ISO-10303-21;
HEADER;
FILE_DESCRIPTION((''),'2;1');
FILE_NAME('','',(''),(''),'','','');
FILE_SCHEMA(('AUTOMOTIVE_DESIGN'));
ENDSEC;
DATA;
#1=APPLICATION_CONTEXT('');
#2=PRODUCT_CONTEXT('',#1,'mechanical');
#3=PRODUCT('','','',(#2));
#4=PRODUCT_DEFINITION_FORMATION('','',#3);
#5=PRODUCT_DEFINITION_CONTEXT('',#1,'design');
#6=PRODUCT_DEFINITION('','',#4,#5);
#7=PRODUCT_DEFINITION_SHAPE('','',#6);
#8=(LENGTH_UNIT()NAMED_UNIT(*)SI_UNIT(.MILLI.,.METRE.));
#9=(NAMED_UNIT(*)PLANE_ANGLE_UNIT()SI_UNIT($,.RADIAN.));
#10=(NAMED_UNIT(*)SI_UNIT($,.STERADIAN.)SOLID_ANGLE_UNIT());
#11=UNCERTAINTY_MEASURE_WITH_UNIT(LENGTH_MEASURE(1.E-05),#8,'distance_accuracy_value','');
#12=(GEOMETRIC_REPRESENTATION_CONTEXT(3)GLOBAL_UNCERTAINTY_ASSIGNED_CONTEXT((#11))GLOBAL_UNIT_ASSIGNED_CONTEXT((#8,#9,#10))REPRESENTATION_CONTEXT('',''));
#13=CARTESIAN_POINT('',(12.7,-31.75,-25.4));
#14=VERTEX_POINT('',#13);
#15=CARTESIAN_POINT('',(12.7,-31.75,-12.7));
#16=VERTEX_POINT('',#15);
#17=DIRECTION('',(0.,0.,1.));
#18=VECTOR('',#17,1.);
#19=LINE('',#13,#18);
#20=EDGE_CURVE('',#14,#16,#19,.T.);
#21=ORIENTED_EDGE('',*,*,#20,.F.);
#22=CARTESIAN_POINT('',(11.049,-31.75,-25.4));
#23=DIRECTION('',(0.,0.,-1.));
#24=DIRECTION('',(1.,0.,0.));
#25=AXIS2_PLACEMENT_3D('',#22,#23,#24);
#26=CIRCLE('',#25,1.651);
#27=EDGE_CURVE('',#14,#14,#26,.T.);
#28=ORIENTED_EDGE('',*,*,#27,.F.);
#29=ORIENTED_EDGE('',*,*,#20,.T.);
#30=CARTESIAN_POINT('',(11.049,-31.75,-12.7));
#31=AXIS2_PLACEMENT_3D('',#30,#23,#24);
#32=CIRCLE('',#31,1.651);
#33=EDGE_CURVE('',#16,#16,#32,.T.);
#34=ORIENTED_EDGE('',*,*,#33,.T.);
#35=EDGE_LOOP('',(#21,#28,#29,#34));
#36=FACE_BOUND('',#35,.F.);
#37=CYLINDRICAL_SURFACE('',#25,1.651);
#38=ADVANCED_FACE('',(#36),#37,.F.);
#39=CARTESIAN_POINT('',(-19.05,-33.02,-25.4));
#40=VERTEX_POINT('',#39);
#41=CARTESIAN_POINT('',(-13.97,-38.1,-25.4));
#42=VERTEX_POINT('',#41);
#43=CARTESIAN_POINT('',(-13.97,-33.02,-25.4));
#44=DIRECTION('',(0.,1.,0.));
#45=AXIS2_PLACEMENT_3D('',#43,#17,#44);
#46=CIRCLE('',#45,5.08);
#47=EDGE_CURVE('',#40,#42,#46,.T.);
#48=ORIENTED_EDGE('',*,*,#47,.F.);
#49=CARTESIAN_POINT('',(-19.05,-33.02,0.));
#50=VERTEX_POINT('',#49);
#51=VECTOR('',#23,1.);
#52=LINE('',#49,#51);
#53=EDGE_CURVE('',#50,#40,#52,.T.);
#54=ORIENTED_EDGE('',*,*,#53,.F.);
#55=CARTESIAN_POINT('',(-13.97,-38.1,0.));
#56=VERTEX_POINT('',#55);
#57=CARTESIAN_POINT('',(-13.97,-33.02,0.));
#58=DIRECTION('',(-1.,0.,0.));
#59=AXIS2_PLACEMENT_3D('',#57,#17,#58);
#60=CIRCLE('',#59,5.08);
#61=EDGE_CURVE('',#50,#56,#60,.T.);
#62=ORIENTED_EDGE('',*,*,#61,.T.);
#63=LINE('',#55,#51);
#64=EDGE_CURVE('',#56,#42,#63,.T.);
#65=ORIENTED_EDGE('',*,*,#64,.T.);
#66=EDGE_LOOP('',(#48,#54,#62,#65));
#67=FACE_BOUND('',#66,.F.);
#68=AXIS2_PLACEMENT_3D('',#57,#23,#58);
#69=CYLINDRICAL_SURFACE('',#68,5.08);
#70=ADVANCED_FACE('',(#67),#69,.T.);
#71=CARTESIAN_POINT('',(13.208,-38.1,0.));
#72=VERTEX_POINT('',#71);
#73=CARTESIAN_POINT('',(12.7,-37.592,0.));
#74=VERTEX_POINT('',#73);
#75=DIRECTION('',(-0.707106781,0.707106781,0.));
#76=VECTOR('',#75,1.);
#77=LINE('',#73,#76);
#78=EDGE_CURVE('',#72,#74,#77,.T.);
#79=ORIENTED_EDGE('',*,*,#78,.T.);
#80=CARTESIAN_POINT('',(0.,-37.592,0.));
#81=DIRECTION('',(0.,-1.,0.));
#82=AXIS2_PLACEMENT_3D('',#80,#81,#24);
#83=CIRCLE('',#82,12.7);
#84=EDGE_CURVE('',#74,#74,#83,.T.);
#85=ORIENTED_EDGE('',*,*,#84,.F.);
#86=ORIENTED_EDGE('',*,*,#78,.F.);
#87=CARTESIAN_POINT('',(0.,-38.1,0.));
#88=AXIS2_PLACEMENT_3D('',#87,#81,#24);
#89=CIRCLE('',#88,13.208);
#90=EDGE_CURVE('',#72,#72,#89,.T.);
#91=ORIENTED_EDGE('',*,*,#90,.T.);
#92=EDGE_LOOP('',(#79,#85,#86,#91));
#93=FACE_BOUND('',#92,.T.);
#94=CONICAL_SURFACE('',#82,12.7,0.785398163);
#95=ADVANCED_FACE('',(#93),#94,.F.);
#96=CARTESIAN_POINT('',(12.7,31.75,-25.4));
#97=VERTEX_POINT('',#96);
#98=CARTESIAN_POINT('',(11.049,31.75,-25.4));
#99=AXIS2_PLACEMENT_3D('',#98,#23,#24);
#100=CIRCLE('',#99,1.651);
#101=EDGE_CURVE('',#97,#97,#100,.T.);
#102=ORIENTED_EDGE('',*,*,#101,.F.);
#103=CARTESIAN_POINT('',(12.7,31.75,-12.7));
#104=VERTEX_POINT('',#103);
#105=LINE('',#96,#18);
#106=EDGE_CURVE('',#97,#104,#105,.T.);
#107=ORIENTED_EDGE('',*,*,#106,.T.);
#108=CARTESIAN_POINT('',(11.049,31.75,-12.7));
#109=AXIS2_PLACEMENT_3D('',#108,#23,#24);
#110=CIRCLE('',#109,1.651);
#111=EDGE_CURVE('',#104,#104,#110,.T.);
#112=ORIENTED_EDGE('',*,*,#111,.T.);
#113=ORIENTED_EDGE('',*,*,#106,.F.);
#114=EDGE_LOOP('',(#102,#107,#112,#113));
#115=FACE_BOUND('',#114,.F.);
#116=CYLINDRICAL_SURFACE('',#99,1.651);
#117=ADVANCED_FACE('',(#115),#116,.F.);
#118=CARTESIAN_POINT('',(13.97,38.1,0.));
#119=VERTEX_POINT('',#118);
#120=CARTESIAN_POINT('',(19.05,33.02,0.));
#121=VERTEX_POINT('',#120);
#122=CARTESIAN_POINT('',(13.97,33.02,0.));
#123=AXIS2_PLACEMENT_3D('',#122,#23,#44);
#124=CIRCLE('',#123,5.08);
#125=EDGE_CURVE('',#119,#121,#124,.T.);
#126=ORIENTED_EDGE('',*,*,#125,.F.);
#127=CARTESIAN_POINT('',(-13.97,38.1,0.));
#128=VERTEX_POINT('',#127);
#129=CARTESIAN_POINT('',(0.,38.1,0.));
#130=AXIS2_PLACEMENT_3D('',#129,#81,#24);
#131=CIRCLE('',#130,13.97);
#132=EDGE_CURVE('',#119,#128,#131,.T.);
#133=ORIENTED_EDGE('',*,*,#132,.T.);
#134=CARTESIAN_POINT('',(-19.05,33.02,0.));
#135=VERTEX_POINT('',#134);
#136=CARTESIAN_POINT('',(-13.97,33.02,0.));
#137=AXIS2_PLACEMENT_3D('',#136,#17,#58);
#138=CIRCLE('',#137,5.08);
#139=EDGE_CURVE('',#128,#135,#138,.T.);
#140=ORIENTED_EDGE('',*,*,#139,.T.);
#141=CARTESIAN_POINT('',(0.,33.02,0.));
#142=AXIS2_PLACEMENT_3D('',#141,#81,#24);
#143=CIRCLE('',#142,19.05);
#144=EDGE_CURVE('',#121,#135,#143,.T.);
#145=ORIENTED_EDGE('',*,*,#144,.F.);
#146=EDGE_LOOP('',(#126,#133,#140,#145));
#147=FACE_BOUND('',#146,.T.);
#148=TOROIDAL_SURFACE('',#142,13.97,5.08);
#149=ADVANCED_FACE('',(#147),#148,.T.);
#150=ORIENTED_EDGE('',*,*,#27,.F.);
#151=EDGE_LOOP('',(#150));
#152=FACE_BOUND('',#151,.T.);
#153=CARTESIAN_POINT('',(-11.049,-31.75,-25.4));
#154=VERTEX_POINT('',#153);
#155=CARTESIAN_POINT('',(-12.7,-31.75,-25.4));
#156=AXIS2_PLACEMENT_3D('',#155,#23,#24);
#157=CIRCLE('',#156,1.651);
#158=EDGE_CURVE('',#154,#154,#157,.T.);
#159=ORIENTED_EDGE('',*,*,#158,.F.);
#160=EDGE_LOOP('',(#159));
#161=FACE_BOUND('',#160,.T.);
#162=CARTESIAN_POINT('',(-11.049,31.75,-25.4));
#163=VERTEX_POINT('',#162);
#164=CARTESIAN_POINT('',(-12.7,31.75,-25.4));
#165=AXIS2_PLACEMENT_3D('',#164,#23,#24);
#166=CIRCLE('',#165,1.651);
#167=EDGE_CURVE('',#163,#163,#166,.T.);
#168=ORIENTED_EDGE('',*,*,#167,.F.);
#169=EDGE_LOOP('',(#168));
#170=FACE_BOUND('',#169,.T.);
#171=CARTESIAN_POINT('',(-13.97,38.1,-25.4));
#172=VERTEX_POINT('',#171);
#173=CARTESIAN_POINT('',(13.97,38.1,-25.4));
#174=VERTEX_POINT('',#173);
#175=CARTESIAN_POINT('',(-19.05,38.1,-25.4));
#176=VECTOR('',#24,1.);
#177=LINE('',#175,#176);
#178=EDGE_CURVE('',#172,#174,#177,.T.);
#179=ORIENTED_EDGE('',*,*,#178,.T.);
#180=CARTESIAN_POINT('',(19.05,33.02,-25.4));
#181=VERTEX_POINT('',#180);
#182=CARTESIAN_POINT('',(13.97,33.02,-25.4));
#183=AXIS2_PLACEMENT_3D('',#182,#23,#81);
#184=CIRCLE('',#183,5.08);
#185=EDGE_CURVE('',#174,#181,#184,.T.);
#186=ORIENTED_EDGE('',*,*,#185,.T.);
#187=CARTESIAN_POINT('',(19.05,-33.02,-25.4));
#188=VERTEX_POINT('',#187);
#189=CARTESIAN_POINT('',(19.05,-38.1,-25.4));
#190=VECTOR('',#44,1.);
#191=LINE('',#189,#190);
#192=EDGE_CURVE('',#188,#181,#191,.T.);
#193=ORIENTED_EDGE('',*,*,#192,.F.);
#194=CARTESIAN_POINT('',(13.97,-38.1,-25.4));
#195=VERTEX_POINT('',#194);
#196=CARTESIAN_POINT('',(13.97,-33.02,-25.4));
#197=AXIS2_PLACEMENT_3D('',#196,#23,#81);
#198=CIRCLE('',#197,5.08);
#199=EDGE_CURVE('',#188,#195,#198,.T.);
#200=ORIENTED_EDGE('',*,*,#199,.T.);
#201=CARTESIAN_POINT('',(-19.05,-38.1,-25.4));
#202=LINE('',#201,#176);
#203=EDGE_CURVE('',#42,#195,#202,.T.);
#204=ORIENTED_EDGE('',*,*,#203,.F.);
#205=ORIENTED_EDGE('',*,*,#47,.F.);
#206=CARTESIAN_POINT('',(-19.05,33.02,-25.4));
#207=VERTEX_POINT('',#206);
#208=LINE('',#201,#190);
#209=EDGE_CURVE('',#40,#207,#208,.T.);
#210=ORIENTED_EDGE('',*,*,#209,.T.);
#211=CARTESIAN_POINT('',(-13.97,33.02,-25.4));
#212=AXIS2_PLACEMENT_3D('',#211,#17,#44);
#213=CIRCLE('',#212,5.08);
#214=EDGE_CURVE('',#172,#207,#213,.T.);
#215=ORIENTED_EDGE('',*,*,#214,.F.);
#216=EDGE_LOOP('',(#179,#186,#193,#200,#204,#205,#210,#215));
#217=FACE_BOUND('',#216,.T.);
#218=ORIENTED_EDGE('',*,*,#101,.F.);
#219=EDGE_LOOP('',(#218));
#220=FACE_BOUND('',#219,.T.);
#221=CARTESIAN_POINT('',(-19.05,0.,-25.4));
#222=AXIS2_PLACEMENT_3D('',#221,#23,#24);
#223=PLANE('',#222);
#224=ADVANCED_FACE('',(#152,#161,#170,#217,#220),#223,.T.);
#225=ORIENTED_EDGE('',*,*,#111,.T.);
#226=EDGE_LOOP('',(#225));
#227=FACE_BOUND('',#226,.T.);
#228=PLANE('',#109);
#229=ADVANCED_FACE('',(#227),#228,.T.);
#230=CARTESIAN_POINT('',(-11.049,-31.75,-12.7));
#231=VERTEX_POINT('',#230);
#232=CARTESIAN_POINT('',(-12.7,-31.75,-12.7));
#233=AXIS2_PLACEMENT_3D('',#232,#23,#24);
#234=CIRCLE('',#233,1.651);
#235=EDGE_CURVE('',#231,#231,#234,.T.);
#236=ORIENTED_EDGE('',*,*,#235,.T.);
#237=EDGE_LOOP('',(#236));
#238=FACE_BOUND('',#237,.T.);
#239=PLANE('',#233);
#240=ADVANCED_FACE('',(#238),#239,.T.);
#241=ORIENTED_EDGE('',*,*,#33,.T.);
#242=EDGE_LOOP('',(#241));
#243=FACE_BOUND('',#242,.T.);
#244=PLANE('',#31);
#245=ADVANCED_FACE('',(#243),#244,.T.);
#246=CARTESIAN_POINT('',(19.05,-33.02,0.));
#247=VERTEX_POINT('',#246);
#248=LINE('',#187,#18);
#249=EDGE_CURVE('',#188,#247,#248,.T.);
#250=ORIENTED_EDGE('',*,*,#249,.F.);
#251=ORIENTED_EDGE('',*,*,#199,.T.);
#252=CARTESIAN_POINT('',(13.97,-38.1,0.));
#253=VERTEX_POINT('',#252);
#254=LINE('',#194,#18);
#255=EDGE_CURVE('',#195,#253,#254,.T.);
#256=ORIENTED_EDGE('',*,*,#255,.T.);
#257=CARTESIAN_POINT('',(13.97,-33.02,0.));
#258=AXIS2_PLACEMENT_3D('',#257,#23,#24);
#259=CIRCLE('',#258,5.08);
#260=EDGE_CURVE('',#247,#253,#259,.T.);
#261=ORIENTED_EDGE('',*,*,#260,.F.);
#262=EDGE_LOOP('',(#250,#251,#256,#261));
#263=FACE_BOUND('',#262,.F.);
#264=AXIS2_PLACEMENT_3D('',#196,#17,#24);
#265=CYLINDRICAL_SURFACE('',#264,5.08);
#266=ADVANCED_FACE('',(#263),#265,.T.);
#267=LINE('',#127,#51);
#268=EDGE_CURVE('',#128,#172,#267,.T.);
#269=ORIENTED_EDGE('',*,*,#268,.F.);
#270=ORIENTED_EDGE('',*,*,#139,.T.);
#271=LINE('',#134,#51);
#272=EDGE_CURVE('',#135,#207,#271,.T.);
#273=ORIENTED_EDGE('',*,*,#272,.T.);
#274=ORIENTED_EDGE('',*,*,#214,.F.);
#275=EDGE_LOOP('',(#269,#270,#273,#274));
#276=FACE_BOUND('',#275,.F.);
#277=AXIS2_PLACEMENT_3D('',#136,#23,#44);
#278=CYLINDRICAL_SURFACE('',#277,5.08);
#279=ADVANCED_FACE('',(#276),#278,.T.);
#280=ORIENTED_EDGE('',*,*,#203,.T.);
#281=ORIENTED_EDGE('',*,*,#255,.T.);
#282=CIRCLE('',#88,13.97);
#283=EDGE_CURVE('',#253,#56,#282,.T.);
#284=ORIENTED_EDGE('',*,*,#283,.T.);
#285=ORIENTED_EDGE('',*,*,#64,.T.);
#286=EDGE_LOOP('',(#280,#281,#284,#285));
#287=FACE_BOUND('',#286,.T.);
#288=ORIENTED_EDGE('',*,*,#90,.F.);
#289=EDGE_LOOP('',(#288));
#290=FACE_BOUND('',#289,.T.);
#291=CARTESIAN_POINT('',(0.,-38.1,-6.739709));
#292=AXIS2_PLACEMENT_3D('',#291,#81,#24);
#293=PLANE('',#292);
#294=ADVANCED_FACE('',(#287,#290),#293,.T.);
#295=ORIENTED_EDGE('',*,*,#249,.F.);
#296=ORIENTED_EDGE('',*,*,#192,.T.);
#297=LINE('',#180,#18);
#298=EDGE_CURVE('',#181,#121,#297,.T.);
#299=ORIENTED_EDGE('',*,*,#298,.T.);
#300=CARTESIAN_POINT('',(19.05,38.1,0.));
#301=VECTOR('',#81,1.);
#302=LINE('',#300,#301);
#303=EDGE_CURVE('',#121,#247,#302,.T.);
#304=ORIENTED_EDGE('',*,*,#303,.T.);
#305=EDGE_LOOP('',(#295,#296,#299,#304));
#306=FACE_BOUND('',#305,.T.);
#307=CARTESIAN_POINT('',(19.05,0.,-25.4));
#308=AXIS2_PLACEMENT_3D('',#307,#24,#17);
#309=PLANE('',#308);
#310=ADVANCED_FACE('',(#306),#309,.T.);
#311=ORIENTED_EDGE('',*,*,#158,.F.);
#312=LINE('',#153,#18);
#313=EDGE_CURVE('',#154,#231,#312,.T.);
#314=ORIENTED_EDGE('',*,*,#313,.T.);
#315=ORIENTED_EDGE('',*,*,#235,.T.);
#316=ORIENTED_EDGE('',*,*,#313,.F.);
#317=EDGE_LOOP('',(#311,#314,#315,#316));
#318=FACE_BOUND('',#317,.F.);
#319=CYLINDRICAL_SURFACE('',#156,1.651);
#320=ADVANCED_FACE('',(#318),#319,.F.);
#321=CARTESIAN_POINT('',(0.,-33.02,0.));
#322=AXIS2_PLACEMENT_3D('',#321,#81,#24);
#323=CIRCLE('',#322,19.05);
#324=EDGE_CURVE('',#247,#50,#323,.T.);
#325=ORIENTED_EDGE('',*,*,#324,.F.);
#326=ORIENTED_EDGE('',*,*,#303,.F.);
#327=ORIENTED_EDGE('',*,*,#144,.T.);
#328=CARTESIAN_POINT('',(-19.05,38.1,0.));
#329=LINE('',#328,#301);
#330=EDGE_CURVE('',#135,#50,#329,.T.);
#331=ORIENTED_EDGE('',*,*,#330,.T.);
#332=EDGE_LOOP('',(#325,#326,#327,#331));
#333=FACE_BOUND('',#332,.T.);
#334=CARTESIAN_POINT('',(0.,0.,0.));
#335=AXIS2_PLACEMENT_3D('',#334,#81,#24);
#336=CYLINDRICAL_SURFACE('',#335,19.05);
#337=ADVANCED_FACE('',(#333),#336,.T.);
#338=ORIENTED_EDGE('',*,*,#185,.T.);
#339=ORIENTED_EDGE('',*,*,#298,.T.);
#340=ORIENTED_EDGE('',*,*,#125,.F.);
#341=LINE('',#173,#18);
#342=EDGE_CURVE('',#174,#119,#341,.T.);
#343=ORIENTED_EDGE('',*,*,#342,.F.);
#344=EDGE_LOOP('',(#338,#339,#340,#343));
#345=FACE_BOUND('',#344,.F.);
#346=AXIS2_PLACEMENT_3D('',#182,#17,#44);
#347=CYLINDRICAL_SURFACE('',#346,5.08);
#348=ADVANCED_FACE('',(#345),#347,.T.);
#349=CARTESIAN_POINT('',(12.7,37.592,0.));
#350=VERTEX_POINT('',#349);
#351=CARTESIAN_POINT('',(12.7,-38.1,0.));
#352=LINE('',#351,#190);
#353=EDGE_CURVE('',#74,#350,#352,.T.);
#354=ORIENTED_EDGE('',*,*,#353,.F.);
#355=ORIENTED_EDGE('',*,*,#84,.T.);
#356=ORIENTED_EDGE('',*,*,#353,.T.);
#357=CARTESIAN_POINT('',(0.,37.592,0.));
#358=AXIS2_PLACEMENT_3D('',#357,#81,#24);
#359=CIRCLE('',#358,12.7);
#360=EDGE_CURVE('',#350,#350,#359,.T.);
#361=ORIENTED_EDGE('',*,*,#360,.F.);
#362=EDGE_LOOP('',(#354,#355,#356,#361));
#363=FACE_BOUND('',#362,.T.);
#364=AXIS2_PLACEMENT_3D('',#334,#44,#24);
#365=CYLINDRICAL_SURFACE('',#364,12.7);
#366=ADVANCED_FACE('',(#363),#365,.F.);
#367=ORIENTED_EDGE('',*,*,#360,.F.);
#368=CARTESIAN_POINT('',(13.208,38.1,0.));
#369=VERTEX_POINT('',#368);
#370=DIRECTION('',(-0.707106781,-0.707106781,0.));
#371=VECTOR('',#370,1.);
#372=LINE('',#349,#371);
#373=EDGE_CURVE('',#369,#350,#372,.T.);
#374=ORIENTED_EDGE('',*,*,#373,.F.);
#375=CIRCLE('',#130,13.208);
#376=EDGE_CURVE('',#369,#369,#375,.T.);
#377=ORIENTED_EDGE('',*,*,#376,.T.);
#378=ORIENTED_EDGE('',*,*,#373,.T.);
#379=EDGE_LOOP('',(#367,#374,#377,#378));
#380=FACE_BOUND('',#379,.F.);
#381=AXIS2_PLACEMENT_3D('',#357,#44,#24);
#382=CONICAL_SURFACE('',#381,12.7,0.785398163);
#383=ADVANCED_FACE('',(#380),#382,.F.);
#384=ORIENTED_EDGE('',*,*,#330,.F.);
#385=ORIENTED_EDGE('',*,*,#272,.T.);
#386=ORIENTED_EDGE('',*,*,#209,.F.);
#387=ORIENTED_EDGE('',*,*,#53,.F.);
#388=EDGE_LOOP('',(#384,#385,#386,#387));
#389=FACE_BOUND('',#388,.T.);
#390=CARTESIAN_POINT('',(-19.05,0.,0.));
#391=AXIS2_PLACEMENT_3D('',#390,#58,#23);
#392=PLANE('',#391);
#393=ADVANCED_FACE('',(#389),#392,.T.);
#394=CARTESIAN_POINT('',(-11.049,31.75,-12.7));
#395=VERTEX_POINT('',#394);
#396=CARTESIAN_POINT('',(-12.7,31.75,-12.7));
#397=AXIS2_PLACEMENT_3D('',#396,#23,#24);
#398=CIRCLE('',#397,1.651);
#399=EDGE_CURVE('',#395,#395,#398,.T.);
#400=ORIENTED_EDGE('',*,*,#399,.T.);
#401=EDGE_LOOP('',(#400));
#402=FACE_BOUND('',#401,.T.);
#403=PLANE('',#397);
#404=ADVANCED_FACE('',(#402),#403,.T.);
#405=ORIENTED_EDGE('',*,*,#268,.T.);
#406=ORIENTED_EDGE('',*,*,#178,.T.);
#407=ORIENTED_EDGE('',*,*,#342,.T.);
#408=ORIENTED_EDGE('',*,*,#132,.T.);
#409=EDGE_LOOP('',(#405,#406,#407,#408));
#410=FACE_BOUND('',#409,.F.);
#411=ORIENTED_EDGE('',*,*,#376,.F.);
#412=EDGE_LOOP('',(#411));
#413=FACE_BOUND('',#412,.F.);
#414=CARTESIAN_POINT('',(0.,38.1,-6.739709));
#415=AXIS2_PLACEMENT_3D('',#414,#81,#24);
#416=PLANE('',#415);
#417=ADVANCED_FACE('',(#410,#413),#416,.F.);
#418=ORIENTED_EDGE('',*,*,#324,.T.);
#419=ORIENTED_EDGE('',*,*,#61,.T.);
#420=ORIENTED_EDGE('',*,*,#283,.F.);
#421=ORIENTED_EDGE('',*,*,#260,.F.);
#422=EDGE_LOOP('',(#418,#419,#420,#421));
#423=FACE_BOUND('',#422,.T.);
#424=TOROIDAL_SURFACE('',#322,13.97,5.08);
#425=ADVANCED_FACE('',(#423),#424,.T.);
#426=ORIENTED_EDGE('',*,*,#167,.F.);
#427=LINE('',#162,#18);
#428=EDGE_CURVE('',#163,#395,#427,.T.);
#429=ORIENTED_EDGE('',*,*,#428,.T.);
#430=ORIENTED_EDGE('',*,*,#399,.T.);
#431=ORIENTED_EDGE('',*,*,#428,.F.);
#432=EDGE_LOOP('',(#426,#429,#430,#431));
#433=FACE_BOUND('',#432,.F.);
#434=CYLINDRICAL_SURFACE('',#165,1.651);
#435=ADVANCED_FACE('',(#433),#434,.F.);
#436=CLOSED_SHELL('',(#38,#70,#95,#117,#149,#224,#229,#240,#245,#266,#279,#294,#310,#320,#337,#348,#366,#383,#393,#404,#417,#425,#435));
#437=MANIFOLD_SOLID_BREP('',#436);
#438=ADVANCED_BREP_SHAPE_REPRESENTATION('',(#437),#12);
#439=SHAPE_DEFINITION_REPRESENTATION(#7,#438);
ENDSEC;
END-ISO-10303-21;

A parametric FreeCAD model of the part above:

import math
import FreeCAD as App
import Part
import Sketcher
from FreeCAD import Vector
Q = App.Units.Quantity


def edges_at(feature, points):
    """Names of the edges that pass closest to the given points."""
    edges = feature.Shape.Edges
    near = lambda p: min(range(len(edges)), key=lambda i: edges[i].distToShape(Part.Vertex(*p))[0])
    return sorted({f"Edge{near(p) + 1}" for p in points})

doc = App.newDocument("Part")
body = doc.addObject("PartDesign::Body", "Body")

# Sketch on XZ plane
sketch1 = body.newObject("Sketcher::SketchObject", "Sketch")
sketch1.AttachmentSupport = (doc.getObject("XZ_Plane"), [""])
sketch1.MapMode = "FlatFace"
sketch1.addGeometry([
    Part.LineSegment(Vector(19, -25, 0), Vector(19, 0, 0)),  # 0
    Part.ArcOfCircle(Part.Circle(Vector(0, 0, 0), Vector(0, 0, 1), 19), math.radians(0), math.radians(180)),  # 1
    Part.LineSegment(Vector(-19, 0, 0), Vector(-19, -25, 0)),  # 2
    Part.LineSegment(Vector(-19, -25, 0), Vector(19, -25, 0)),  # 3
    Part.Circle(Vector(0, 0, 0), Vector(0, 0, 1), 13),  # 4
], False)
sketch1.addConstraint([
    Sketcher.Constraint("Tangent", 0, 2, 1, 1),
    Sketcher.Constraint("Tangent", 1, 2, 2, 1),
    Sketcher.Constraint("Coincident", 2, 2, 3, 1),
    Sketcher.Constraint("Coincident", 3, 2, 0, 1),
    Sketcher.Constraint("Vertical", 0),
    Sketcher.Constraint("Vertical", 2),
    Sketcher.Constraint("Horizontal", 3),
    Sketcher.Constraint("Coincident", 1, 3, -1, 1),
    Sketcher.Constraint("Coincident", 4, 3, -1, 1),
    Sketcher.Constraint("Diameter", 4, Q("1 in")),
    Sketcher.Constraint("DistanceY", 0, 1, 0, 2, Q("1 in")),
    Sketcher.Constraint("Radius", 1, Q("0.75 in")),
])
pad1 = body.newObject("PartDesign::Pad", "Pad")
pad1.Profile = sketch1
pad1.Length = Q("3 in")
pad1.Midplane = True

# Sketch on XY plane
sketch2 = body.newObject("Sketcher::SketchObject", "Sketch001")
sketch2.AttachmentSupport = (doc.getObject("XY_Plane"), [""])
sketch2.MapMode = "FlatFace"
sketch2.AttachmentOffset = App.Placement(Vector(0, 0, -1 * 25.4), App.Rotation())
sketch2.addGeometry([
    Part.Circle(Vector(-12.7, -31.8, 0), Vector(0, 0, 1), 1.7),
    Part.Circle(Vector(11, -31.8, 0), Vector(0, 0, 1), 1.7),
    Part.Circle(Vector(-12.7, 31.8, 0), Vector(0, 0, 1), 1.7),
    Part.Circle(Vector(11, 31.8, 0), Vector(0, 0, 1), 1.7),
], False)
sketch2.addConstraint([
    Sketcher.Constraint("Equal", 0, 1),
    Sketcher.Constraint("Equal", 1, 2),
    Sketcher.Constraint("Equal", 2, 3),
    Sketcher.Constraint("Symmetric", 0, 3, 2, 3, -1),
    Sketcher.Constraint("Symmetric", 1, 3, 3, 3, -1),
    Sketcher.Constraint("Horizontal", 0, 3, 1, 3),
    Sketcher.Constraint("Diameter", 0, Q("0.13 in")),
    Sketcher.Constraint("DistanceX", 0, 3, -1, 1, Q("0.5 in")),
    Sketcher.Constraint("DistanceY", 0, 3, 2, 3, Q("2.5 in")),
    Sketcher.Constraint("DistanceX", -1, 1, 1, 3, Q("0.435 in")),
])
pocket1 = body.newObject("PartDesign::Pocket", "Pocket")
pocket1.Profile = sketch2
pocket1.Length = Q("0.5 in")
pocket1.Reversed = True
doc.recompute()

fillet = body.newObject("PartDesign::Fillet", "Fillet")
fillet.Base = (pocket1, edges_at(pocket1, [(0, 38.1, 19.05), (0, -38.1, 19.05)]))
fillet.Radius = Q("0.2 in")
doc.recompute()

chamfer = body.newObject("PartDesign::Chamfer", "Chamfer")
chamfer.Base = (fillet, edges_at(fillet, [(-12.7, 38.1, 0), (-12.7, -38.1, 0)]))
chamfer.Size = Q("0.02 in")

doc.recompute()
